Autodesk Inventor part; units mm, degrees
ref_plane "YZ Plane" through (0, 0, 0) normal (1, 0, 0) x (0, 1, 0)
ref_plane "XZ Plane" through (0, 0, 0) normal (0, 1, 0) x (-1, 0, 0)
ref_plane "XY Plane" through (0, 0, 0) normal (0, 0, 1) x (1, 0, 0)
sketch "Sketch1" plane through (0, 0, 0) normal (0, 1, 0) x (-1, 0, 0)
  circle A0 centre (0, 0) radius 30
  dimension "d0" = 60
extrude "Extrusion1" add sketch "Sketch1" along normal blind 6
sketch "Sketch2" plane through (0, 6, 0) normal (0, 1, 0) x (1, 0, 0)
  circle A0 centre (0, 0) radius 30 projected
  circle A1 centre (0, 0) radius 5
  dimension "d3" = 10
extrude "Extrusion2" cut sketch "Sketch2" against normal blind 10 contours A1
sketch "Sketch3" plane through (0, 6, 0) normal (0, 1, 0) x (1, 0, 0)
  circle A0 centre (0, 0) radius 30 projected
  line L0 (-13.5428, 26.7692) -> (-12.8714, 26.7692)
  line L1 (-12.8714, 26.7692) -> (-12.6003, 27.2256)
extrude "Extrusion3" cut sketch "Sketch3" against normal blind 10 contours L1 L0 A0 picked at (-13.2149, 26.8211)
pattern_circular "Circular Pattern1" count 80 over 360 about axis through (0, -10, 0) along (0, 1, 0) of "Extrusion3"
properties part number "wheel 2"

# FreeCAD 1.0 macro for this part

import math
import FreeCAD as App
import Part
import Sketcher

V = App.Vector
Q = App.Units.Quantity

doc = App.newDocument("Part")
body = doc.addObject("PartDesign::Body", "Body")

# Sketch on XZ plane
sketch1 = body.newObject("Sketcher::SketchObject", "Sketch")
sketch1.AttachmentSupport = (doc.getObject("XZ_Plane"), [""])
sketch1.MapMode = "FlatFace"
sketch1.addGeometry(Part.Circle(V(0, 0, 0), V(0, 0, 1), 30), False)
sketch1.addConstraint(Sketcher.Constraint("Coincident", 0, 3, -1, 1))
sketch1.addConstraint(Sketcher.Constraint("Diameter", 0, 60.0))
pad1 = body.newObject("PartDesign::Pad", "Pad")
pad1.Profile = sketch1
pad1.Length = 6
pad1.Reversed = True

# Sketch on XZ plane
sketch2 = body.newObject("Sketcher::SketchObject", "Sketch001")
sketch2.AttachmentSupport = (doc.getObject("XZ_Plane"), [""])
sketch2.MapMode = "FlatFace"
sketch2.AttachmentOffset = App.Placement(V(0, 0, -6), App.Rotation())
sketch2.addGeometry(Part.Circle(V(0, 0, 0), V(0, 0, 1), 5), False)
sketch2.addConstraint(Sketcher.Constraint("Coincident", 0, 3, -1, 1))
sketch2.addConstraint(Sketcher.Constraint("Diameter", 0, 10.0))
pocket1 = body.newObject("PartDesign::Pocket", "Pocket")
pocket1.Profile = sketch2
pocket1.Length = 10
pocket1.Reversed = True

# Sketch on XZ plane
sketch3 = body.newObject("Sketcher::SketchObject", "Sketch002")
sketch3.AttachmentSupport = (doc.getObject("XZ_Plane"), [""])
sketch3.MapMode = "FlatFace"
sketch3.AttachmentOffset = App.Placement(V(0, 0, -6), App.Rotation())
sketch3.addGeometry(Part.LineSegment(V(-12.9, -26.8, 0), V(-12.6, -27.2, 0)), False)
sketch3.addGeometry(Part.ArcOfCircle(Part.Circle(V(0, 0, 0), V(0, 0, 1), 30), math.radians(-116.84), math.radians(-114.84)), False)
sketch3.addGeometry(Part.LineSegment(V(-13.5, -26.8, 0), V(-12.9, -26.8, 0)), False)
sketch3.addConstraint(Sketcher.Constraint("Coincident", 0, 2, 1, 2))
sketch3.addConstraint(Sketcher.Constraint("Coincident", 1, 1, 2, 1))
sketch3.addConstraint(Sketcher.Constraint("Coincident", 2, 2, 0, 1))
sketch3.addConstraint(Sketcher.Constraint("Horizontal", 2))
sketch3.addConstraint(Sketcher.Constraint("Coincident", 1, 3, -1, 1))
sketch3.addConstraint(Sketcher.Constraint("Radius", 1, 30.0))
sketch3.addConstraint(Sketcher.Constraint("Angle", 0, Q("-59.2898 deg")))
sketch3.addConstraint(Sketcher.Constraint("DistanceX", 2, 1, 2, 2, 0.6714))
sketch3.addConstraint(Sketcher.Constraint("DistanceX", 2, 2, 0, 2, 0.271))
pocket2 = body.newObject("PartDesign::Pocket", "Pocket001")
pocket2.Profile = sketch3
pocket2.Length = 10
pocket2.Reversed = True
doc.recompute()

polarpattern = body.newObject("PartDesign::PolarPattern", "PolarPattern")
polarpattern.Originals = [pocket2]
polarpattern.Axis = (doc.getObject("Y_Axis"), [""])
polarpattern.Angle = 360
polarpattern.Occurrences = 80
body.Tip = polarpattern

doc.recompute()
